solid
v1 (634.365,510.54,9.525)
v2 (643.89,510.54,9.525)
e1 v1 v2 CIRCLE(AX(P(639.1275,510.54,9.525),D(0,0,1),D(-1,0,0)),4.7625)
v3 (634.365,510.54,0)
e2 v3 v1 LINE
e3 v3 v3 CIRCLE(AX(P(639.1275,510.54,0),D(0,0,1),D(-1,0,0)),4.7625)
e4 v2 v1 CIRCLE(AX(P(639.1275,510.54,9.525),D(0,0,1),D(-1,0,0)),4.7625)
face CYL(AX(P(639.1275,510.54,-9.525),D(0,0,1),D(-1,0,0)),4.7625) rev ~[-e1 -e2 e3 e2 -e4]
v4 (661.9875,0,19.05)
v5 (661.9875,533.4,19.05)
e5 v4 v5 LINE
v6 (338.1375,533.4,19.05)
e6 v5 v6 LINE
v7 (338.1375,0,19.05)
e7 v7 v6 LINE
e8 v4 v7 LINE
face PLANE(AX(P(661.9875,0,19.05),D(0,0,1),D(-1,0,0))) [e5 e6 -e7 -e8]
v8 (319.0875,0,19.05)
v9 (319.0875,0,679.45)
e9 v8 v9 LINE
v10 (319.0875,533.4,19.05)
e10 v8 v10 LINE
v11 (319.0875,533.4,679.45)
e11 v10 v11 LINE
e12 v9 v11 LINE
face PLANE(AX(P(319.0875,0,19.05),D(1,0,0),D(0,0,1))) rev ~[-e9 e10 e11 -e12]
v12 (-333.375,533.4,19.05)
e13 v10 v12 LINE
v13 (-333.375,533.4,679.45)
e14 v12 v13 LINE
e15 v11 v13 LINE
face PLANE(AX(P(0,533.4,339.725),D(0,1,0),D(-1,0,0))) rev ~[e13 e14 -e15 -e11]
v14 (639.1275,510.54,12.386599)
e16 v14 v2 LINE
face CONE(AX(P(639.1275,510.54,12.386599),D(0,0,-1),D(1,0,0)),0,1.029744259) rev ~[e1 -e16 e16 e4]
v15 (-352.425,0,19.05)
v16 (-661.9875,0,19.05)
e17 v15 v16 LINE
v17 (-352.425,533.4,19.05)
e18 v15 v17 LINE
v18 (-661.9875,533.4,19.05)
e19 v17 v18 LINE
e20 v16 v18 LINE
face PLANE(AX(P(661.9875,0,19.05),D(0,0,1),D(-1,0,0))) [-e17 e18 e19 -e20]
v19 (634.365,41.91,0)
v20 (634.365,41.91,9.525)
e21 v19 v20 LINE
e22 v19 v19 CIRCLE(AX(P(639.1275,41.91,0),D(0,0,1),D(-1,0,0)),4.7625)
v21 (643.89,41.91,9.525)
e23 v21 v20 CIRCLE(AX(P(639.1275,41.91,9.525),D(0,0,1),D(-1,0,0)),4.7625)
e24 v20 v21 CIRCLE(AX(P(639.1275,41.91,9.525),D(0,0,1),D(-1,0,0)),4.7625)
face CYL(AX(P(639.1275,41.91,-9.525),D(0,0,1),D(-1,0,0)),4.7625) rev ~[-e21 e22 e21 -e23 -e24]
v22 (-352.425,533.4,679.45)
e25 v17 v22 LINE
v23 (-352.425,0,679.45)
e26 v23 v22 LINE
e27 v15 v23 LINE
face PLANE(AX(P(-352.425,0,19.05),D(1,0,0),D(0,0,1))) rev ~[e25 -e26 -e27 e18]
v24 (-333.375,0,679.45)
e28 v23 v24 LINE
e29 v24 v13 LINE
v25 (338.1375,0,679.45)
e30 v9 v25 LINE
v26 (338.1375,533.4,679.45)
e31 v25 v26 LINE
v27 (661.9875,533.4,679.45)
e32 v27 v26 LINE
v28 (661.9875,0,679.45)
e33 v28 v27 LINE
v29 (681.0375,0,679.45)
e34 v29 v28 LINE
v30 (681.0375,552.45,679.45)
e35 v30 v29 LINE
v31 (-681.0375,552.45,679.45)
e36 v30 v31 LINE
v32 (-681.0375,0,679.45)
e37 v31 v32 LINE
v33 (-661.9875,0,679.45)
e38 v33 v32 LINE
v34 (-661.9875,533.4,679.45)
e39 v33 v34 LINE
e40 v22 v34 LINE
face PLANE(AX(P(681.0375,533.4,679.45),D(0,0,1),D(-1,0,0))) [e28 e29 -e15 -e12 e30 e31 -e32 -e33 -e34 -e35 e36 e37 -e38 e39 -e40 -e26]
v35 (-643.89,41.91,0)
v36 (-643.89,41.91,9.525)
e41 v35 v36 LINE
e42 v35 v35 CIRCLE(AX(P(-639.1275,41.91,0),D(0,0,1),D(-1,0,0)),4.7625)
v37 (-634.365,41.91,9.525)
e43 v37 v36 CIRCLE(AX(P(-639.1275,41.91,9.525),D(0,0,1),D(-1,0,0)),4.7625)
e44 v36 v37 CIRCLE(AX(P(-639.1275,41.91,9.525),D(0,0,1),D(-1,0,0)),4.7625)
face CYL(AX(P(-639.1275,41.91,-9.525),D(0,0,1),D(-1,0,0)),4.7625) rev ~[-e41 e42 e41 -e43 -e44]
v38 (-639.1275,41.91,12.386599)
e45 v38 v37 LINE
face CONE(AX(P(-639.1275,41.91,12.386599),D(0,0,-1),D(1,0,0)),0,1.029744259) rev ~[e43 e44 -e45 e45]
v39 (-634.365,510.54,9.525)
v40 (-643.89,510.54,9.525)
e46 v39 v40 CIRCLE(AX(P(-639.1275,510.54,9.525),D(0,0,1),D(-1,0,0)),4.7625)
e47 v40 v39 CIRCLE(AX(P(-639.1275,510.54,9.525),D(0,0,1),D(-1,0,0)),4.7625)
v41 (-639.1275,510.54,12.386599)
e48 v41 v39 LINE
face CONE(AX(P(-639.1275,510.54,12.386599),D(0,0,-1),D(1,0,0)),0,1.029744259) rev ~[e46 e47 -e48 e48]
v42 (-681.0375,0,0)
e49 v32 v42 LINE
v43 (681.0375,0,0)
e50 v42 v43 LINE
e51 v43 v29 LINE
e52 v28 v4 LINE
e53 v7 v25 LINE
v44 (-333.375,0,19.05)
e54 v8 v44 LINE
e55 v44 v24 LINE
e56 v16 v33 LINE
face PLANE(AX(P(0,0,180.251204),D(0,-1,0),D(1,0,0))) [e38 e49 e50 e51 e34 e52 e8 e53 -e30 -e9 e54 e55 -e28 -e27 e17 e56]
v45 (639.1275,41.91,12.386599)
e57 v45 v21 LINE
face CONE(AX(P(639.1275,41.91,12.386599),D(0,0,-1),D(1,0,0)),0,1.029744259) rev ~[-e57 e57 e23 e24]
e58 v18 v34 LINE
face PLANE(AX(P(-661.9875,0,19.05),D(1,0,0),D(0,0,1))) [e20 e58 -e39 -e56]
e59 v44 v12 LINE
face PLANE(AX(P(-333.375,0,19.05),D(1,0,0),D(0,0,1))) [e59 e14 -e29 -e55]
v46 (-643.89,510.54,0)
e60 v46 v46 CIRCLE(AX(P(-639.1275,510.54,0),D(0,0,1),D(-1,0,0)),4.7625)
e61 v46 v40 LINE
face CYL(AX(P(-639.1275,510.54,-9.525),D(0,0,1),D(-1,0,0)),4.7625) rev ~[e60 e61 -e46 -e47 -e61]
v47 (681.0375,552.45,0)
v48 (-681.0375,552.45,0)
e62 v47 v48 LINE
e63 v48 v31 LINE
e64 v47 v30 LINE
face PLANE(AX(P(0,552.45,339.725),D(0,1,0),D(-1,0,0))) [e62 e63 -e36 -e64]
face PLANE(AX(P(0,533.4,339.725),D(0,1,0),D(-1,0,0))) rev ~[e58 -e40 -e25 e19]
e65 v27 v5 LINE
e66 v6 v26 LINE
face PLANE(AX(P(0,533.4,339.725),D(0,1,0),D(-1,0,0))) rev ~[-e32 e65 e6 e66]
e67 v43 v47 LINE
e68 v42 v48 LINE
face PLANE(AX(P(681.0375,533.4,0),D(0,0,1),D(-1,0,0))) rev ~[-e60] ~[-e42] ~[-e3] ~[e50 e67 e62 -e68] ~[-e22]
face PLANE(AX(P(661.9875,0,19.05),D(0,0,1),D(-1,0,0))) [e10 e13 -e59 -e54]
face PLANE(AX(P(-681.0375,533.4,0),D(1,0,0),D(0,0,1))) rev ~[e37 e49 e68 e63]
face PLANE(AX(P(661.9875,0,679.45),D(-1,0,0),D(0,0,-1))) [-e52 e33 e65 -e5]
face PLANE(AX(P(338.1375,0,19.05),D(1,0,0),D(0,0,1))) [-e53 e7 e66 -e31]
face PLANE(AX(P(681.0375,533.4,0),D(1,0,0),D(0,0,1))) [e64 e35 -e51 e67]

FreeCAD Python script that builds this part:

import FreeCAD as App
import Part
import Sketcher
from FreeCAD import Vector
Q = App.Units.Quantity

doc = App.newDocument("Part")
body = doc.addObject("PartDesign::Body", "Body")

sketch1 = body.newObject("Sketcher::SketchObject", "Sketch")
sketch1.AttachmentSupport = (doc.getObject("XZ_Plane"), [""])
sketch1.MapMode = "FlatFace"
sketch1.addGeometry([
    Part.LineSegment(Vector(-662, 679, 0), Vector(-681, 679, 0)),
    Part.LineSegment(Vector(-681, 679, 0), Vector(-681, 0, 0)),
    Part.LineSegment(Vector(-681, 0, 0), Vector(681, 0, 0)),
    Part.LineSegment(Vector(681, 0, 0), Vector(681, 679, 0)),
    Part.LineSegment(Vector(681, 679, 0), Vector(662, 679, 0)),
    Part.LineSegment(Vector(662, 679, 0), Vector(662, 19, 0)),
    Part.LineSegment(Vector(662, 19, 0), Vector(-662, 19, 0)),
    Part.LineSegment(Vector(-662, 19, 0), Vector(-662, 679, 0)),
], False)
sketch1.addConstraint([
    Sketcher.Constraint("Coincident", 0, 2, 1, 1),
    Sketcher.Constraint("Coincident", 1, 2, 2, 1),
    Sketcher.Constraint("Coincident", 2, 2, 3, 1),
    Sketcher.Constraint("Coincident", 3, 2, 4, 1),
    Sketcher.Constraint("Coincident", 4, 2, 5, 1),
    Sketcher.Constraint("Coincident", 5, 2, 6, 1),
    Sketcher.Constraint("Coincident", 6, 2, 7, 1),
    Sketcher.Constraint("Coincident", 7, 2, 0, 1),
    Sketcher.Constraint("Horizontal", 0),
    Sketcher.Constraint("Vertical", 1),
    Sketcher.Constraint("Horizontal", 2),
    Sketcher.Constraint("Vertical", 3),
    Sketcher.Constraint("Horizontal", 4),
    Sketcher.Constraint("Vertical", 5),
    Sketcher.Constraint("Horizontal", 6),
    Sketcher.Constraint("Vertical", 7),
    Sketcher.Constraint("Symmetric", 1, 2, 2, 2, -1, 1),
    Sketcher.Constraint("Symmetric", 4, 2, 7, 2, -2),
    Sketcher.Constraint("DistanceY", 5, 2, 5, 1, Q("26 in")),
    Sketcher.Constraint("DistanceX", 0, 2, 0, 1, Q("0.75 in")),
    Sketcher.Constraint("DistanceY", 1, 2, 1, 1, Q("26.75 in")),
    Sketcher.Constraint("DistanceX", 2, 1, 2, 2, Q("53.625 in")),
])
pad1 = body.newObject("PartDesign::Pad", "Pad")
pad1.Profile = sketch1
pad1.Length = Q("21 in")
pad1.Reversed = True

sketch2 = body.newObject("Sketcher::SketchObject", "Sketch001")
sketch2.AttachmentSupport = (doc.getObject("XZ_Plane"), [""])
sketch2.MapMode = "FlatFace"
sketch2.AttachmentOffset = App.Placement(Vector(0, 0, -21 * 25.4), App.Rotation())
sketch2.addGeometry([
    Part.LineSegment(Vector(681, 679, 0), Vector(681, 0, 0)),
    Part.LineSegment(Vector(681, 0, 0), Vector(-681, 0, 0)),
    Part.LineSegment(Vector(-681, 0, 0), Vector(-681, 679, 0)),
    Part.LineSegment(Vector(-681, 679, 0), Vector(681, 679, 0)),
], False)
sketch2.addConstraint([
    Sketcher.Constraint("Coincident", 0, 2, 1, 1),
    Sketcher.Constraint("Coincident", 1, 2, 2, 1),
    Sketcher.Constraint("Coincident", 2, 2, 3, 1),
    Sketcher.Constraint("Coincident", 3, 2, 0, 1),
    Sketcher.Constraint("Vertical", 0),
    Sketcher.Constraint("Horizontal", 1),
    Sketcher.Constraint("Vertical", 2),
    Sketcher.Constraint("Horizontal", 3),
    Sketcher.Constraint("Symmetric", 0, 2, 1, 2, -1, 1),
    Sketcher.Constraint("DistanceY", 0, 2, 0, 1, Q("26.75 in")),
    Sketcher.Constraint("DistanceX", 1, 2, 1, 1, Q("53.625 in")),
])
pad2 = body.newObject("PartDesign::Pad", "Pad001")
pad2.Profile = sketch2
pad2.Length = Q("0.75 in")
pad2.Reversed = True

sketch3 = body.newObject("Sketcher::SketchObject", "Sketch002")
sketch3.AttachmentSupport = (doc.getObject("XZ_Plane"), [""])
sketch3.MapMode = "FlatFace"
sketch3.addGeometry([
    Part.LineSegment(Vector(-352, 679, 0), Vector(-352, 19, 0)),
    Part.LineSegment(Vector(-352, 19, 0), Vector(-333, 19, 0)),
    Part.LineSegment(Vector(-333, 19, 0), Vector(-333, 679, 0)),
    Part.LineSegment(Vector(-333, 679, 0), Vector(-352, 679, 0)),
    Part.LineSegment(Vector(319, 679, 0), Vector(319, 19, 0)),
    Part.LineSegment(Vector(319, 19, 0), Vector(338, 19, 0)),
    Part.LineSegment(Vector(338, 19, 0), Vector(338, 679, 0)),
    Part.LineSegment(Vector(338, 679, 0), Vector(319, 679, 0)),
], False)
sketch3.addConstraint([
    Sketcher.Constraint("Coincident", 0, 2, 1, 1),
    Sketcher.Constraint("Coincident", 1, 2, 2, 1),
    Sketcher.Constraint("Coincident", 2, 2, 3, 1),
    Sketcher.Constraint("Coincident", 3, 2, 0, 1),
    Sketcher.Constraint("Coincident", 4, 2, 5, 1),
    Sketcher.Constraint("Coincident", 5, 2, 6, 1),
    Sketcher.Constraint("Coincident", 6, 2, 7, 1),
    Sketcher.Constraint("Coincident", 7, 2, 4, 1),
    Sketcher.Constraint("Vertical", 0),
    Sketcher.Constraint("Horizontal", 1),
    Sketcher.Constraint("Vertical", 2),
    Sketcher.Constraint("Horizontal", 3),
    Sketcher.Constraint("Vertical", 4),
    Sketcher.Constraint("Horizontal", 5),
    Sketcher.Constraint("Vertical", 6),
    Sketcher.Constraint("Horizontal", 7),
    Sketcher.Constraint("Horizontal", 1, 2, 4, 2),
    Sketcher.Constraint("Horizontal", 3, 2, 6, 2),
    Sketcher.Constraint("Equal", 3, 5),
    Sketcher.Constraint("DistanceY", 0, 2, 0, 1, Q("26 in")),
    Sketcher.Constraint("DistanceX", 1, 1, 1, 2, Q("0.75 in")),
    Sketcher.Constraint("DistanceY", -1, 1, 0, 2, Q("0.75 in")),
    Sketcher.Constraint("DistanceX", 0, 2, -1, 1, Q("13.875 in")),
    Sketcher.Constraint("DistanceX", -1, 1, 4, 2, Q("12.5625 in")),
])
pad3 = body.newObject("PartDesign::Pad", "Pad002")
pad3.Profile = sketch3
pad3.Type = "UpToLast"
pad3.Reversed = True

sketch4 = body.newObject("Sketcher::SketchObject", "Sketch003")
sketch4.AttachmentSupport = (doc.getObject("XY_Plane"), [""])
sketch4.MapMode = "FlatFace"
sketch4.addGeometry([
    Part.Circle(Vector(-639.1, 41.9, 0), Vector(0, 0, 1), 4.8),
    Part.Circle(Vector(-639.1, 510.5, 0), Vector(0, 0, 1), 4.8),
    Part.Circle(Vector(639.1, 41.9, 0), Vector(0, 0, 1), 4.8),
    Part.Circle(Vector(639.1, 510.5, 0), Vector(0, 0, 1), 4.8),
], False)
sketch4.addConstraint([
    Sketcher.Constraint("Equal", 0, 1),
    Sketcher.Constraint("Equal", 1, 2),
    Sketcher.Constraint("Equal", 2, 3),
    Sketcher.Constraint("Symmetric", 0, 3, 2, 3, -2),
    Sketcher.Constraint("Symmetric", 1, 3, 3, 3, -2),
    Sketcher.Constraint("Vertical", 0, 3, 1, 3),
    Sketcher.Constraint("Diameter", 0, Q("0.375 in")),
    Sketcher.Constraint("DistanceY", -1, 1, 1, 3, Q("20.1 in")),
    Sketcher.Constraint("DistanceY", -1, 1, 0, 3, Q("1.65 in")),
    Sketcher.Constraint("DistanceX", 0, 3, 2, 3, Q("50.325 in")),
])
doc.recompute()
hole = body.newObject("PartDesign::Hole", "Hole")
hole.Profile = sketch4
hole.ThreadType = "None"
hole.Diameter = Q("0.375 in")
hole.DepthType = "Dimension"
hole.Depth = Q("0.375 in")
hole.DrillPoint = "Angled"
hole.DrillPointAngle = 118
hole.Reversed = True

doc.recompute()
